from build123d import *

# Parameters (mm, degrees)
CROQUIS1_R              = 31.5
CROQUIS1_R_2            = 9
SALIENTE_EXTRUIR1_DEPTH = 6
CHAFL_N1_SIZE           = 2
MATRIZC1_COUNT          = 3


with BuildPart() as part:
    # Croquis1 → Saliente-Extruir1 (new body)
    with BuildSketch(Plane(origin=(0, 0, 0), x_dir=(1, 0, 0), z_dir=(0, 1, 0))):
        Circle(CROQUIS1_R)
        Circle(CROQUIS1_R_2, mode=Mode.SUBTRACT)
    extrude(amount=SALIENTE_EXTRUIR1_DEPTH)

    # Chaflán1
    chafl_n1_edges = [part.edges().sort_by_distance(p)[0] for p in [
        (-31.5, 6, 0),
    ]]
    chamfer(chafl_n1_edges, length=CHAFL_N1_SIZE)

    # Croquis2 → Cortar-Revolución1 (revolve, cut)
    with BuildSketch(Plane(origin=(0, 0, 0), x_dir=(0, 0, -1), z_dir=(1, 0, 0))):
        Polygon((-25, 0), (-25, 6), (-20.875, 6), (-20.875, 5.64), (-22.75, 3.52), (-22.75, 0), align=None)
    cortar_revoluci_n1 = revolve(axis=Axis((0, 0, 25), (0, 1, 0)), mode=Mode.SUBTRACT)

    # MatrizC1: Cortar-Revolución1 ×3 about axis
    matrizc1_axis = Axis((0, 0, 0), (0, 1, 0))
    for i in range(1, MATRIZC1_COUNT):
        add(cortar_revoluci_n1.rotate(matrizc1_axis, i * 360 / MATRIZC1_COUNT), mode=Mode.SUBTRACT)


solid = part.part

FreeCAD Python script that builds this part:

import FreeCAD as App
import Part
import Sketcher
Q = App.Units.Quantity


def edges_at(feature, points):
    """Names of the edges that pass closest to the given points."""
    edges = feature.Shape.Edges
    near = lambda p: min(range(len(edges)), key=lambda i: edges[i].distToShape(Part.Vertex(*p))[0])
    return sorted({f"Edge{near(p) + 1}" for p in points})


def add_polygon(sketch, points):
    """Adds a closed chain of lines whose ends are joined by coincident constraints."""
    first, n = sketch.GeometryCount, len(points)
    for a, b in zip(points, points[1:] + points[:1]):
        sketch.addGeometry(Part.LineSegment(App.Vector(*a, 0), App.Vector(*b, 0)), False)
    for i in range(n):
        sketch.addConstraint(Sketcher.Constraint("Coincident", first + i, 2, first + (i + 1) % n, 1))

doc = App.newDocument("Part")
body = doc.addObject("PartDesign::Body", "Body")

# Sketch on XZ plane
sketch1 = body.newObject("Sketcher::SketchObject", "Sketch")
sketch1.AttachmentSupport = (doc.getObject("XZ_Plane"), [""])
sketch1.MapMode = "FlatFace"
sketch1.addGeometry([
    Part.Circle(App.Vector(0, 0, 0), App.Vector(0, 0, 1), 32),
    Part.Circle(App.Vector(0, 0, 0), App.Vector(0, 0, 1), 9),
], False)
sketch1.addConstraint([
    Sketcher.Constraint("Coincident", 0, 3, -1, 1),
    Sketcher.Constraint("Coincident", 1, 3, -1, 1),
    Sketcher.Constraint("Diameter", 0, Q("63 mm")),
    Sketcher.Constraint("Diameter", 1, Q("18 mm")),
])
pad1 = body.newObject("PartDesign::Pad", "Pad")
pad1.Profile = sketch1
pad1.Length = 6
pad1.Reversed = True
doc.recompute()

chamfer = body.newObject("PartDesign::Chamfer", "Chamfer")
chamfer.Base = (pad1, edges_at(pad1, [(-31.5, 6, 0)]))
chamfer.Size = 2

# Sketch on YZ plane
sketch2 = body.newObject("Sketcher::SketchObject", "Sketch001")
sketch2.AttachmentSupport = (doc.getObject("YZ_Plane"), [""])
sketch2.MapMode = "FlatFace"
add_polygon(sketch2, [(6, 25), (0, 25), (0, 22.75), (3.52, 22.75), (5.64, 20.88), (6, 20.88)])  # lines 0-5
sketch2.addGeometry(Part.LineSegment(App.Vector(0, 25, 0), App.Vector(6, 25, 0)), True)  # axis
sketch2.addConstraint([
    Sketcher.Constraint("Horizontal", 0),
    Sketcher.Constraint("Vertical", 1),
    Sketcher.Constraint("Horizontal", 2),
    Sketcher.Constraint("Horizontal", 4),
    Sketcher.Constraint("Vertical", 5),
    Sketcher.Constraint("Horizontal", 6),
    Sketcher.Constraint("Coincident", 6, 1, 0, 2),
    Sketcher.Constraint("PointOnObject", 0, 2, -2),
    Sketcher.Constraint("Vertical", 4, 2, 6, 2),
    Sketcher.Constraint("DistanceX", 0, 2, 0, 1, Q("6 mm")),
    Sketcher.Constraint("DistanceY", -1, 1, 0, 2, Q("25 mm")),
    Sketcher.Constraint("DistanceX", 2, 1, 2, 2, Q("3.52 mm")),
    Sketcher.Constraint("DistanceX", 4, 1, 4, 2, Q("0.36 mm")),
    Sketcher.Constraint("DistanceY", 1, 2, 1, 1, Q("2.25 mm")),
    Sketcher.Constraint("DistanceY", 5, 1, 5, 2, Q("4.125 mm")),
])
groove = body.newObject("PartDesign::Groove", "Groove")
groove.Profile = sketch2
groove.ReferenceAxis = (sketch2, ["Axis0"])
groove.Angle = 360
doc.recompute()

polarpattern = body.newObject("PartDesign::PolarPattern", "PolarPattern")
polarpattern.Originals = [groove]
polarpattern.Axis = (doc.getObject("Y_Axis"), [""])
polarpattern.Angle = 360
polarpattern.Occurrences = 3
body.Tip = polarpattern

doc.recompute()
